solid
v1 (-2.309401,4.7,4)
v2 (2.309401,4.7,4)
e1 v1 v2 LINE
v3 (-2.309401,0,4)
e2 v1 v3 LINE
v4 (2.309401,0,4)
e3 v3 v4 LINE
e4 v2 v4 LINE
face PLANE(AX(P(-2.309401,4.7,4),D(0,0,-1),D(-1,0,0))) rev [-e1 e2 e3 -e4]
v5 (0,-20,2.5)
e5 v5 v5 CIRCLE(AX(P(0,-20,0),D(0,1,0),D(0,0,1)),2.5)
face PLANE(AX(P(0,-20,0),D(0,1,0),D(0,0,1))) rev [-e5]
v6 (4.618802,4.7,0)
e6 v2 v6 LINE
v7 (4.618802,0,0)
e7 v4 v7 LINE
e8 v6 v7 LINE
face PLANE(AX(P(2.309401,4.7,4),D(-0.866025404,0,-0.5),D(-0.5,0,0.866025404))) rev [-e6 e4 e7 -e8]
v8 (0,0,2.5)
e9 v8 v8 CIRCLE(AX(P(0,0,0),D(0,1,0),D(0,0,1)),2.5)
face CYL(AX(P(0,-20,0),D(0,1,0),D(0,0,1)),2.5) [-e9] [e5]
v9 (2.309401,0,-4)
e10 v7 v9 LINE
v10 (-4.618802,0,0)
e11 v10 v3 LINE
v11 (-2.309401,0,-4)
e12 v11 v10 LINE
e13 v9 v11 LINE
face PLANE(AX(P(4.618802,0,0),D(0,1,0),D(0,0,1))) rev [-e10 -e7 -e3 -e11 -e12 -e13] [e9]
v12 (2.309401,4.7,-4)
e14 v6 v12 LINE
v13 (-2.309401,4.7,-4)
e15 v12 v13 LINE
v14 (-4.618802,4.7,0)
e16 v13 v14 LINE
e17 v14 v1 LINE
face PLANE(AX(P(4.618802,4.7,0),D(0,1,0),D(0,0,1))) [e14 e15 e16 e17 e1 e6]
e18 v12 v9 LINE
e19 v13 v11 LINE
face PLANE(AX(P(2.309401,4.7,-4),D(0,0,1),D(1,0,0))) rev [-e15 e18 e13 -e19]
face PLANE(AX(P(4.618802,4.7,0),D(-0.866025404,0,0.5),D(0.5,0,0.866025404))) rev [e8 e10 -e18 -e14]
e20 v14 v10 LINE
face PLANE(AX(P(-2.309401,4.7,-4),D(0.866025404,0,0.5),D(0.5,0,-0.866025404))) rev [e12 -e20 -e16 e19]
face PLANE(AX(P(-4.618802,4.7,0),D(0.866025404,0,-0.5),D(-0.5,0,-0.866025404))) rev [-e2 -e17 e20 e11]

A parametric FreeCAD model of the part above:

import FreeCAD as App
import Part
import Sketcher
from FreeCAD import Vector
Q = App.Units.Quantity


def add_polygon(sketch, points):
    """Adds a closed chain of lines whose ends are joined by coincident constraints."""
    first, n = sketch.GeometryCount, len(points)
    for a, b in zip(points, points[1:] + points[:1]):
        sketch.addGeometry(Part.LineSegment(App.Vector(*a, 0), App.Vector(*b, 0)), False)
    for i in range(n):
        sketch.addConstraint(Sketcher.Constraint("Coincident", first + i, 2, first + (i + 1) % n, 1))

doc = App.newDocument("Part")
body = doc.addObject("PartDesign::Body", "Body")

# Sketch on XZ plane
sketch1 = body.newObject("Sketcher::SketchObject", "Sketch")
sketch1.AttachmentSupport = (doc.getObject("XZ_Plane"), [""])
sketch1.MapMode = "FlatFace"
add_polygon(sketch1, [(4.6, 0), (2.3, -4), (-2.3, -4), (-4.6, 0), (-2.3, 4), (2.3, 4)])  # lines 0-5
sketch1.addConstraint(Sketcher.Constraint("Horizontal", 1))
sketch1.addConstraint(Sketcher.Constraint("Horizontal", 4))
sketch1.addConstraint(Sketcher.Constraint("Symmetric", 0, 2, 3, 2, -1, 1))
sketch1.addConstraint(Sketcher.Constraint("Symmetric", 2, 2, 5, 2, -1, 1))
sketch1.addConstraint(Sketcher.Constraint("PointOnObject", 2, 2, -1))
sketch1.addConstraint(Sketcher.Constraint("Parallel", 2, 5))
sketch1.addConstraint(Sketcher.Constraint("Vertical", 1, 2, 3, 2))
sketch1.addConstraint(Sketcher.Constraint("Angle", 0, Q("-120 deg")))
sketch1.addConstraint(Sketcher.Constraint("DistanceY", 0, 2, -1, 1, Q("4 mm")))
sketch1.addConstraint(Sketcher.Constraint("DistanceX", -1, 1, 0, 2, Q("2.309401 mm")))
pad1 = body.newObject("PartDesign::Pad", "Pad")
pad1.Profile = sketch1
pad1.Length = 4.7
pad1.Reversed = True

# Sketch on XZ plane
sketch2 = body.newObject("Sketcher::SketchObject", "Sketch001")
sketch2.AttachmentSupport = (doc.getObject("XZ_Plane"), [""])
sketch2.MapMode = "FlatFace"
sketch2.addGeometry(Part.Circle(Vector(0, 0, 0), Vector(0, 0, 1), 2.5), False)
sketch2.addConstraint(Sketcher.Constraint("Coincident", 0, 3, -1, 1))
sketch2.addConstraint(Sketcher.Constraint("Diameter", 0, Q("5 mm")))
pad2 = body.newObject("PartDesign::Pad", "Pad001")
pad2.Profile = sketch2
pad2.Length = 20

doc.recompute()
